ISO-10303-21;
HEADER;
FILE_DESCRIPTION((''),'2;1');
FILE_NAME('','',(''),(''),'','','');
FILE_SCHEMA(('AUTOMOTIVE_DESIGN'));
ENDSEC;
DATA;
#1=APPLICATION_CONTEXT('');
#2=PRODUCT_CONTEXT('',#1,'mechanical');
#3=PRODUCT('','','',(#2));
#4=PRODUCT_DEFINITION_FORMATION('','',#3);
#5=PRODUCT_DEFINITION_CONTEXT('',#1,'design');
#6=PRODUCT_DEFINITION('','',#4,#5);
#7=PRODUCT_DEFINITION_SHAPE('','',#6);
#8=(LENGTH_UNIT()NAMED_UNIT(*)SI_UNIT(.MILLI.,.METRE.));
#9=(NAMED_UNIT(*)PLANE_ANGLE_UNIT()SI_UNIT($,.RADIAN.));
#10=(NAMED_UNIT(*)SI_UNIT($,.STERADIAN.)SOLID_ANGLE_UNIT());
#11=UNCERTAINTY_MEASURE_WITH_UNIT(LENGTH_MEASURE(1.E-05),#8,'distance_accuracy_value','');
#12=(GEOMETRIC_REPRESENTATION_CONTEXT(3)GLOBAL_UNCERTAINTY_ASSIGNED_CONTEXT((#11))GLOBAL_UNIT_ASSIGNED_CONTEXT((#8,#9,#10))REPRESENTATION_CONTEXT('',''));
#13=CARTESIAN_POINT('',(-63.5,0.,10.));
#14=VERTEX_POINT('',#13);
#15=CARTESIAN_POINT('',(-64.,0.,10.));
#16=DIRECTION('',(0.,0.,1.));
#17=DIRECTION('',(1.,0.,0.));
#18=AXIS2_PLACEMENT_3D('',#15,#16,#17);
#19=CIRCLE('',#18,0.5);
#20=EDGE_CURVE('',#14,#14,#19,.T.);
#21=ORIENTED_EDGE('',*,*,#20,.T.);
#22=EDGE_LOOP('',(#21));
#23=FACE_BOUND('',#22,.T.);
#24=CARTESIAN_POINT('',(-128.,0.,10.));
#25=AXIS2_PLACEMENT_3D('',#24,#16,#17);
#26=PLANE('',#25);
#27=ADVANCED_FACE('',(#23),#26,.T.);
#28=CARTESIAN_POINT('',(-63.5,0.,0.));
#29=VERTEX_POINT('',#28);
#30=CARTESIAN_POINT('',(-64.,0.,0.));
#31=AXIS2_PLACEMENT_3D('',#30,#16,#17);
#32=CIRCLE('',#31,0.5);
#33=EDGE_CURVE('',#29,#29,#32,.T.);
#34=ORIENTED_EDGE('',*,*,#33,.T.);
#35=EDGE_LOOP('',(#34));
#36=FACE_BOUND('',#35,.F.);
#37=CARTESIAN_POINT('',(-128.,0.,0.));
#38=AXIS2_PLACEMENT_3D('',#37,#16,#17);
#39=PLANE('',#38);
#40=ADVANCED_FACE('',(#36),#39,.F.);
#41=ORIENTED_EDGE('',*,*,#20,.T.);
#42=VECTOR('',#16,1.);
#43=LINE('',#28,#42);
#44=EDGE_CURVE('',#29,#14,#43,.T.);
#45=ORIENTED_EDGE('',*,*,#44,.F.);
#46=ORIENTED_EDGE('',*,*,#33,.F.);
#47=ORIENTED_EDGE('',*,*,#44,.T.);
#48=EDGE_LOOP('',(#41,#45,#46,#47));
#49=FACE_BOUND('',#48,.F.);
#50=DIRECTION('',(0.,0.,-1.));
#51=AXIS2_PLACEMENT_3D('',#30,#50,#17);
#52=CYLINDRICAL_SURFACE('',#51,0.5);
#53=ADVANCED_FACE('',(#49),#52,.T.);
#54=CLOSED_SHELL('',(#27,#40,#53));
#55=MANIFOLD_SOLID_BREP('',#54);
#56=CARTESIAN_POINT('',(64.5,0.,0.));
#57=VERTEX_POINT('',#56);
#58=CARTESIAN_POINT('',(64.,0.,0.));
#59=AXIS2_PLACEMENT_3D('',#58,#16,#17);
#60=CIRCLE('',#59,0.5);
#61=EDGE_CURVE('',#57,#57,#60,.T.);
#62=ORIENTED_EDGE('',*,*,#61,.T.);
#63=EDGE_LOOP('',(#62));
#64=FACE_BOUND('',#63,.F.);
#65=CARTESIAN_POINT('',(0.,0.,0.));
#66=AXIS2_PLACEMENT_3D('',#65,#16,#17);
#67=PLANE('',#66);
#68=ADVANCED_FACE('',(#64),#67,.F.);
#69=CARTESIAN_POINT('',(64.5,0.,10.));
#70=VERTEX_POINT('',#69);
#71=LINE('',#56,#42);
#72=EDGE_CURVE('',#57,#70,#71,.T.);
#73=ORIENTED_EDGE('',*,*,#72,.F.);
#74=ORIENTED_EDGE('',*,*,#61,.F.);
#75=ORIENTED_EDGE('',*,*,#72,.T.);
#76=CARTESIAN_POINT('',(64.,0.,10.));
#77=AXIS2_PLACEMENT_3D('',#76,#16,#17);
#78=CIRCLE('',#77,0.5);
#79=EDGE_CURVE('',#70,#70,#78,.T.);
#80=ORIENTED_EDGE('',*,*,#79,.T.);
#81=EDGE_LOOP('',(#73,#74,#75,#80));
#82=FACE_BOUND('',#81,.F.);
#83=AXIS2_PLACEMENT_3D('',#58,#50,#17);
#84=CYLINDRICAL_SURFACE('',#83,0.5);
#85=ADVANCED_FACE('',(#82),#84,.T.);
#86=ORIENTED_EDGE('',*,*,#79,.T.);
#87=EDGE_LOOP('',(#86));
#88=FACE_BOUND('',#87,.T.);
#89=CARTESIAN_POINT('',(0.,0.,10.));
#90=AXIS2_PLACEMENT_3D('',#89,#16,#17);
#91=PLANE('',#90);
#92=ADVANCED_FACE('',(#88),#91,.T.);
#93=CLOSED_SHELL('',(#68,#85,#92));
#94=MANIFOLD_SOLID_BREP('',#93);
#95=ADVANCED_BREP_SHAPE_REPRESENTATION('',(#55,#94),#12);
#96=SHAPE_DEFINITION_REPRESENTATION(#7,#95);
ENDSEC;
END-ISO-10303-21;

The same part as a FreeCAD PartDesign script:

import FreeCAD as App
import Part
import Sketcher

doc = App.newDocument("Part")
body = doc.addObject("PartDesign::Body", "Body")
body.AllowCompound = True

# Sketch on XY plane
sketch1 = doc.addObject("Sketcher::SketchObject", "Sketch")
body.addObject(sketch1)
sketch1.AttachmentSupport = (doc.XY_Plane, [""])
sketch1.MapMode = "FlatFace"
sketch1.addGeometry(Part.Circle(App.Vector(64, 0, 0), App.Vector(0, 0, 1), 0.5), False)
sketch1.addConstraint(Sketcher.Constraint("PointOnObject", 0, 3, -1))
sketch1.addConstraint(Sketcher.Constraint("Diameter", 0, 1.0))
sketch1.addConstraint(Sketcher.Constraint("DistanceX", -1, 1, 0, 3, 64.0))
pad1 = doc.addObject("PartDesign::Pad", "Pad")
body.addObject(pad1)
pad1.Profile = sketch1
pad1.Length = 10
doc.recompute()

linearpattern = doc.addObject("PartDesign::LinearPattern", "LinearPattern")
body.addObject(linearpattern)
linearpattern.Originals = [pad1]
linearpattern.Direction = (doc.X_Axis, [""])
linearpattern.Mode = "offset"
linearpattern.Offset = 128
linearpattern.Occurrences = 2
linearpattern.Reversed = True
body.Tip = linearpattern

doc.recompute()
